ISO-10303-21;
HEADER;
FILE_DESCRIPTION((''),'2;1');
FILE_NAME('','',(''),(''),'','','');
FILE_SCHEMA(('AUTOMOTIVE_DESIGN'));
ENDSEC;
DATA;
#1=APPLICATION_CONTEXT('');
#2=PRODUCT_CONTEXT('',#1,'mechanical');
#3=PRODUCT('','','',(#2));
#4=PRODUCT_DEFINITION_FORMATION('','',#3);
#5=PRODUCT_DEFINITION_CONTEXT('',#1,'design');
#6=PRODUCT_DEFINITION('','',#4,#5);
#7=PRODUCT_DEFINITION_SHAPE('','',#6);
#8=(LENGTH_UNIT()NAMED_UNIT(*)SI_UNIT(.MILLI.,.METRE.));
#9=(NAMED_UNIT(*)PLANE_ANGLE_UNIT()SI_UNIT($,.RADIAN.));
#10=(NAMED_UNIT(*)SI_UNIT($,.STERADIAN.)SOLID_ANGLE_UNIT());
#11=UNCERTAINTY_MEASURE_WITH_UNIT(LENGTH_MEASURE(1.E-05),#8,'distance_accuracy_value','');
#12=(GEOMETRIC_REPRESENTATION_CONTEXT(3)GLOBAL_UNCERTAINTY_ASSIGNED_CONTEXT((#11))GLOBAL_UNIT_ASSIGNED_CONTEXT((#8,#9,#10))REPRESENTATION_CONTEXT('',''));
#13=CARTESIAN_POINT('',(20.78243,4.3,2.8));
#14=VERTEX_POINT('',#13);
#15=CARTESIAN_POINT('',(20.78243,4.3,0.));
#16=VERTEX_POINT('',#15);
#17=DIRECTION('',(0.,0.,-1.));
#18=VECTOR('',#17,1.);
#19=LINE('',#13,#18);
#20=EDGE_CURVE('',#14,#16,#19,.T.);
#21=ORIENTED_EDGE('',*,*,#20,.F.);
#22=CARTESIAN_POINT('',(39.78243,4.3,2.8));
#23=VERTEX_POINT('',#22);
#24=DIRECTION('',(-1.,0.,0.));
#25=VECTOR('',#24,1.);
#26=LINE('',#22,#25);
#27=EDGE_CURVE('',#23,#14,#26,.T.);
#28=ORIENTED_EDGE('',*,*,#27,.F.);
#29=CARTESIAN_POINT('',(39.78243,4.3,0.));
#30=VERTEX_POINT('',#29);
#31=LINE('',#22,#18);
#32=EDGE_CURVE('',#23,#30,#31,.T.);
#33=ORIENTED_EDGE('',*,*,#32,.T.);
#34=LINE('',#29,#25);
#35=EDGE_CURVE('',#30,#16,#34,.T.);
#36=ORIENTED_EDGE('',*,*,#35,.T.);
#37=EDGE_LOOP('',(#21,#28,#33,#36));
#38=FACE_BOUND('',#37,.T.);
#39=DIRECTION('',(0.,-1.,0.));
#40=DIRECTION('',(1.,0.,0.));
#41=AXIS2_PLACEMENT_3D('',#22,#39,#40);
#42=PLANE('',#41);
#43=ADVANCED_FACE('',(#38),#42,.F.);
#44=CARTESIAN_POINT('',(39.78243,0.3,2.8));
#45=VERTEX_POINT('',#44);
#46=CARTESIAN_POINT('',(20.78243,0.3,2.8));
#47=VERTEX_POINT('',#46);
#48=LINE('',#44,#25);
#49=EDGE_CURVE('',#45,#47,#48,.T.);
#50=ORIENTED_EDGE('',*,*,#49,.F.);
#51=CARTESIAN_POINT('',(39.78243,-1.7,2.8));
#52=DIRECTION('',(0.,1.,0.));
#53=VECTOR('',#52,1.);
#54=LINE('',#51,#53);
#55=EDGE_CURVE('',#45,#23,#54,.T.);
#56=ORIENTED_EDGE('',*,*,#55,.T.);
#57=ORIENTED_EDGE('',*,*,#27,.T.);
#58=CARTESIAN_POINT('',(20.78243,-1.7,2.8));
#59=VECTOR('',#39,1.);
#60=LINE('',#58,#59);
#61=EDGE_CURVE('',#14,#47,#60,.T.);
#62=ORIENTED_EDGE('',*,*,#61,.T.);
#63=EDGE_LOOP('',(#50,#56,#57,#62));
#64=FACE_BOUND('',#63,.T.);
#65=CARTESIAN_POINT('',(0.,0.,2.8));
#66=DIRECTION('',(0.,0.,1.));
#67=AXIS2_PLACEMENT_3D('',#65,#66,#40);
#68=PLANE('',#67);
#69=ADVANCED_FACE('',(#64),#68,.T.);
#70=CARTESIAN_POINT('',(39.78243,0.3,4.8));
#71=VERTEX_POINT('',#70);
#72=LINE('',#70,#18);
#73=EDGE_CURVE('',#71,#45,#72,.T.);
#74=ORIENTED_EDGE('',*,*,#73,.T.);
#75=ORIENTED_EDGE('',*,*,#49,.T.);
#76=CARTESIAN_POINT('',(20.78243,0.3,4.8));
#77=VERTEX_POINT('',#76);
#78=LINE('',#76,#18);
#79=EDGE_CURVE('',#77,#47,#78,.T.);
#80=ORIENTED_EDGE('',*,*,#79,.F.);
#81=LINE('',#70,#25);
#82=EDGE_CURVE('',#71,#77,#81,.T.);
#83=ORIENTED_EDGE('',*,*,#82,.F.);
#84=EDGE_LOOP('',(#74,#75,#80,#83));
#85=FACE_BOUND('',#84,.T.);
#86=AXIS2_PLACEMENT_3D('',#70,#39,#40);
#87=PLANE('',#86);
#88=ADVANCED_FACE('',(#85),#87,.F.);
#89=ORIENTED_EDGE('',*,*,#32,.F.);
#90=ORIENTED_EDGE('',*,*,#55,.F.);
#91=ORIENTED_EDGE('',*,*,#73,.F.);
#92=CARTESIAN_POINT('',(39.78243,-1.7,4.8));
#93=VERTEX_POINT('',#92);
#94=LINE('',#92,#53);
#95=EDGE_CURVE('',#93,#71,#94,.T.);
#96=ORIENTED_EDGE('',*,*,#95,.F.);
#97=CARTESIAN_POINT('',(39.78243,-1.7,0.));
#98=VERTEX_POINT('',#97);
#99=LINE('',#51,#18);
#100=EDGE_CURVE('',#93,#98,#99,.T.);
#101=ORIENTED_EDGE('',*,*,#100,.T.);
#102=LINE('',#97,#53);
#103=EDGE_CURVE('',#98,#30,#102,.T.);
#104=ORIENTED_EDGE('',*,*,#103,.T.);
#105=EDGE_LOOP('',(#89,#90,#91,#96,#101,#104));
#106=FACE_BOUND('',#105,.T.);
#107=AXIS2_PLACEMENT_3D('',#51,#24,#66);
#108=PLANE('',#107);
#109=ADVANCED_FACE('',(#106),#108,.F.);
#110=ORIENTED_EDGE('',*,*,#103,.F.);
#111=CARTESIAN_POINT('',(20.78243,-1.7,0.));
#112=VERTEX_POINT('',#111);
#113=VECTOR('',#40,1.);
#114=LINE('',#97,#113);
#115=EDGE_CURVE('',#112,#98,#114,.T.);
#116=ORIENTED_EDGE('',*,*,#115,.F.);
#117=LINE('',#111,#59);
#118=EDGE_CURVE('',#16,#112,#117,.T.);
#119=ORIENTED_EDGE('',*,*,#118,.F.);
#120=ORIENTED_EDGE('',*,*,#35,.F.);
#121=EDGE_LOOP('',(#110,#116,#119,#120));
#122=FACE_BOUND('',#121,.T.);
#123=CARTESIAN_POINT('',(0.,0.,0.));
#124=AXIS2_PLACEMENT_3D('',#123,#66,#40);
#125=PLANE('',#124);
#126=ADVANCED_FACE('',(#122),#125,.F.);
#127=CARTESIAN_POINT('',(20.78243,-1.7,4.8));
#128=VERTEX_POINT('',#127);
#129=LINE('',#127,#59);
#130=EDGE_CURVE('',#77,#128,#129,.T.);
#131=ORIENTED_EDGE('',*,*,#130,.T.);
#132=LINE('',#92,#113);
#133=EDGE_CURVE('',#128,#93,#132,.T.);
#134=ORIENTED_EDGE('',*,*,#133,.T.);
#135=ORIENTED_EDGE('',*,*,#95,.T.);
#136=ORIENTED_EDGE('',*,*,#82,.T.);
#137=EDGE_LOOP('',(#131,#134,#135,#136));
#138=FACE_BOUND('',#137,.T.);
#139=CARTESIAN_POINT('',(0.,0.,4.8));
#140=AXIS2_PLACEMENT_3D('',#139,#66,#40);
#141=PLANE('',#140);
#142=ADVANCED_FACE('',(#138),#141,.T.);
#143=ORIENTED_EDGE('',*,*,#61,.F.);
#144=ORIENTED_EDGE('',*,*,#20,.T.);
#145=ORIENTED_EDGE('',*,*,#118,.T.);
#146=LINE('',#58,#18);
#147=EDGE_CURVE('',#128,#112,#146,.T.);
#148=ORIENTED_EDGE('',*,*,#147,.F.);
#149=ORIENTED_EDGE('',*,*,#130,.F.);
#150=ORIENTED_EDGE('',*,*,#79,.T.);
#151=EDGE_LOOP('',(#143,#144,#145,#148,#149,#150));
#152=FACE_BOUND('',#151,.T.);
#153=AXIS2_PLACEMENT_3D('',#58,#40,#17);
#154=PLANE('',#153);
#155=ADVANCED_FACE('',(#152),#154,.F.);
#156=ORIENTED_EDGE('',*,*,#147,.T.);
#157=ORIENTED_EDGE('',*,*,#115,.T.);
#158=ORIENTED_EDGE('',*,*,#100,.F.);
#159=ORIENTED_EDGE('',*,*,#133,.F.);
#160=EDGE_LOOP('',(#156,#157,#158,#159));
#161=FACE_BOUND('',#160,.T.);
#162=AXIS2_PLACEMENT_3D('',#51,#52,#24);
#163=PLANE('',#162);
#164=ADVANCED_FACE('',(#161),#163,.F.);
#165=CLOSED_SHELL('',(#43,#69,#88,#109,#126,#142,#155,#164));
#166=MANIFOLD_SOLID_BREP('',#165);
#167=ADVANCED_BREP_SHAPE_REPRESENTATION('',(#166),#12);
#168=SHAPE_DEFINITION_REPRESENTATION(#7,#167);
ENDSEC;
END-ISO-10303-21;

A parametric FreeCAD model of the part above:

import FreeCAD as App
import Part
import Sketcher

V = App.Vector

doc = App.newDocument("Part")
params = doc.addObject("Spreadsheet::Sheet", "Params")
for row, (alias, value) in enumerate([
    ("sketch1_width", "19 mm"),
    ("sketch1_height", "6 mm"),
    ("pad1_length", "2.8 mm"),
    ("sketch2_width", "19 mm"),
    ("sketch2_height", "2 mm"),
    ("pad2_length", "2 mm"),
], start=1):
    params.set(f"A{row}", alias)
    params.set(f"B{row}", "=" + value)
    params.setAlias(f"B{row}", alias)

body = doc.addObject("PartDesign::Body", "Body")

# Sketch on XY plane
sketch1 = body.newObject("Sketcher::SketchObject", "Sketch")
sketch1.AttachmentSupport = (doc.getObject("XY_Plane"), [""])
sketch1.MapMode = "FlatFace"
sketch1.addGeometry([
    Part.LineSegment(V(20.78243, 4.3, 0), V(20.78243, -1.7, 0)),
    Part.LineSegment(V(20.78243, -1.7, 0), V(39.78243, -1.7, 0)),
    Part.LineSegment(V(39.78243, -1.7, 0), V(39.78243, 4.3, 0)),
    Part.LineSegment(V(39.78243, 4.3, 0), V(20.78243, 4.3, 0)),
], False)
sketch1.addConstraint([
    Sketcher.Constraint("Coincident", 0, 2, 1, 1),
    Sketcher.Constraint("Coincident", 1, 2, 2, 1),
    Sketcher.Constraint("Coincident", 2, 2, 3, 1),
    Sketcher.Constraint("Coincident", 3, 2, 0, 1),
    Sketcher.Constraint("Vertical", 0),
    Sketcher.Constraint("Horizontal", 1),
    Sketcher.Constraint("Vertical", 2),
    Sketcher.Constraint("Horizontal", 3),
    Sketcher.Constraint("DistanceX", 1, 1, 1, 2, 19.0),
    Sketcher.Constraint("DistanceY", 0, 2, 0, 1, 6.0),
    Sketcher.Constraint("DistanceY", 0, 2, -1, 1, 1.7),
    Sketcher.Constraint("DistanceX", -1, 1, 0, 2, 20.78243),
])
sketch1.setExpression("Constraints[8]", "Params.sketch1_width")
sketch1.setExpression("Constraints[9]", "Params.sketch1_height")
pad1 = body.newObject("PartDesign::Pad", "Pad")
pad1.Profile = sketch1
pad1.setExpression("Length", "Params.pad1_length")

# Sketch on XY plane
sketch2 = body.newObject("Sketcher::SketchObject", "Sketch001")
sketch2.AttachmentSupport = (doc.getObject("XY_Plane"), [""])
sketch2.MapMode = "FlatFace"
sketch2.AttachmentOffset = App.Placement(V(0, 0, 2.8), App.Rotation())
sketch2.addGeometry([
    Part.LineSegment(V(20.78243, 0.3, 0), V(20.78243, -1.7, 0)),
    Part.LineSegment(V(20.78243, -1.7, 0), V(39.78243, -1.7, 0)),
    Part.LineSegment(V(39.78243, -1.7, 0), V(39.78243, 0.3, 0)),
    Part.LineSegment(V(39.78243, 0.3, 0), V(20.78243, 0.3, 0)),
], False)
sketch2.addConstraint([
    Sketcher.Constraint("Coincident", 0, 2, 1, 1),
    Sketcher.Constraint("Coincident", 1, 2, 2, 1),
    Sketcher.Constraint("Coincident", 2, 2, 3, 1),
    Sketcher.Constraint("Coincident", 3, 2, 0, 1),
    Sketcher.Constraint("Vertical", 0),
    Sketcher.Constraint("Horizontal", 1),
    Sketcher.Constraint("Vertical", 2),
    Sketcher.Constraint("Horizontal", 3),
    Sketcher.Constraint("DistanceX", 1, 1, 1, 2, 19.0),
    Sketcher.Constraint("DistanceY", 0, 2, 0, 1, 2.0),
    Sketcher.Constraint("DistanceY", 0, 2, -1, 1, 1.7),
    Sketcher.Constraint("DistanceX", -1, 1, 0, 2, 20.78243),
])
sketch2.setExpression("Constraints[8]", "Params.sketch2_width")
sketch2.setExpression("Constraints[9]", "Params.sketch2_height")
pad2 = body.newObject("PartDesign::Pad", "Pad001")
pad2.Profile = sketch2
pad2.setExpression("Length", "Params.pad2_length")

doc.recompute()
